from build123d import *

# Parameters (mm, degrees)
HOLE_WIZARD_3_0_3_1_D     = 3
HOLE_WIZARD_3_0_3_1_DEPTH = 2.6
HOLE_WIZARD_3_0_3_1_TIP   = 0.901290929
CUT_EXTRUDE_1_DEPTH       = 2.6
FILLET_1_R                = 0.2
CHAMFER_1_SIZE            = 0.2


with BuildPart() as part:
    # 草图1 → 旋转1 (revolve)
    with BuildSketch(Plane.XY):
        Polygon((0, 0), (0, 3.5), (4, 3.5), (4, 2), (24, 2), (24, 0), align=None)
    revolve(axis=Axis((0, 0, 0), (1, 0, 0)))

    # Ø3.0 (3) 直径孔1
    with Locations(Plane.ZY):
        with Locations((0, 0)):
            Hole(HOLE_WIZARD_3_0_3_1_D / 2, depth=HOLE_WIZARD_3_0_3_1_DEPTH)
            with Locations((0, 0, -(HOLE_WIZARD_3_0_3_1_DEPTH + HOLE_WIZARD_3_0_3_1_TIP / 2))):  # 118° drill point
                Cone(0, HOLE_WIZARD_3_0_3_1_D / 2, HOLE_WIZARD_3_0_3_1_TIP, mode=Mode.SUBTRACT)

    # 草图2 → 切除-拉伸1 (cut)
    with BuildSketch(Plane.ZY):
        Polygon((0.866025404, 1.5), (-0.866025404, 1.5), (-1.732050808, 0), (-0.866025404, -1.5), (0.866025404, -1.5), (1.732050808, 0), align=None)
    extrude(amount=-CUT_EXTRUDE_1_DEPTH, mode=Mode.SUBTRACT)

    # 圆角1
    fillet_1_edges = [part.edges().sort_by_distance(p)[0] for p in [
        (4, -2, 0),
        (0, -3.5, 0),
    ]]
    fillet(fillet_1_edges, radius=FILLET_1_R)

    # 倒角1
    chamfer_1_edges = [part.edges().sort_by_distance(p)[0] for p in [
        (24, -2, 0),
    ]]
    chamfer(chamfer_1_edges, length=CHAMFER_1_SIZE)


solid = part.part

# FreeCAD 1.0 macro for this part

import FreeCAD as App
import Part
import Sketcher

V = App.Vector
Q = App.Units.Quantity


def edges_at(feature, points):
    """Names of the edges that pass closest to the given points."""
    edges = feature.Shape.Edges
    near = lambda p: min(range(len(edges)), key=lambda i: edges[i].distToShape(Part.Vertex(*p))[0])
    return sorted({f"Edge{near(p) + 1}" for p in points})


def add_polygon(sketch, points):
    """Adds a closed chain of lines whose ends are joined by coincident constraints."""
    first, n = sketch.GeometryCount, len(points)
    for a, b in zip(points, points[1:] + points[:1]):
        sketch.addGeometry(Part.LineSegment(App.Vector(*a, 0), App.Vector(*b, 0)), False)
    for i in range(n):
        sketch.addConstraint(Sketcher.Constraint("Coincident", first + i, 2, first + (i + 1) % n, 1))

doc = App.newDocument("Part")
params = doc.addObject("Spreadsheet::Sheet", "Params")
for row, (alias, value) in enumerate([
    ("sketch1_width", "24 mm"),
    ("sketch1_width2", "20 mm"),
    ("sketch1_height", "2 mm"),
    ("sketch1_height2", "3.5 mm"),
    ("revolution_angle", "360 deg"),
    ("sketch2_diameter", "3 mm"),
    ("hole_diameter", "3 mm"),
    ("hole_depth", "2.6 mm"),
    ("pocket1_length", "2.6 mm"),
    ("fillet_radius", "0.2 mm"),
    ("chamfer_size", "0.2 mm"),
], start=1):
    params.set(f"A{row}", alias)
    params.set(f"B{row}", "=" + value)
    params.setAlias(f"B{row}", alias)

body = doc.addObject("PartDesign::Body", "Body")

sketch1 = body.newObject("Sketcher::SketchObject", "Sketch")
sketch1.AttachmentSupport = (doc.getObject("XY_Plane"), [""])
sketch1.MapMode = "FlatFace"
add_polygon(sketch1, [(0, 3.5), (0, 0), (24, 0), (24, 2), (4, 2), (4, 3.5)])
sketch1.addConstraint([
    Sketcher.Constraint("Vertical", 0),
    Sketcher.Constraint("Horizontal", 1),
    Sketcher.Constraint("Vertical", 2),
    Sketcher.Constraint("Horizontal", 3),
    Sketcher.Constraint("Vertical", 4),
    Sketcher.Constraint("Horizontal", 5),
    Sketcher.Constraint("Coincident", 0, 2, -1, 1),
    Sketcher.Constraint("DistanceX", 1, 1, 1, 2, Q("24 mm")),
    Sketcher.Constraint("DistanceX", 3, 2, 3, 1, Q("20 mm")),
    Sketcher.Constraint("DistanceY", 2, 1, 2, 2, Q("2 mm")),
    Sketcher.Constraint("DistanceY", 0, 2, 0, 1, Q("3.5 mm")),
])
sketch1.setExpression("Constraints[13]", "Params.sketch1_width")
sketch1.setExpression("Constraints[14]", "Params.sketch1_width2")
sketch1.setExpression("Constraints[15]", "Params.sketch1_height")
sketch1.setExpression("Constraints[16]", "Params.sketch1_height2")
revolution = body.newObject("PartDesign::Revolution", "Revolution")
revolution.Profile = sketch1
revolution.ReferenceAxis = (sketch1, ["H_Axis"])
revolution.setExpression("Angle", "Params.revolution_angle")

sketch2 = body.newObject("Sketcher::SketchObject", "Sketch001")
sketch2.AttachmentSupport = (doc.getObject("YZ_Plane"), [""])
sketch2.MapMode = "FlatFace"
sketch2.addGeometry(Part.Circle(V(0, 0, 0), V(0, 0, 1), 1.5), False)
sketch2.addConstraint([
    Sketcher.Constraint("Coincident", 0, 3, -1, 1),
    Sketcher.Constraint("Diameter", 0, Q("3 mm")),
])
sketch2.setExpression("Constraints[1]", "Params.sketch2_diameter")
doc.recompute()
hole = body.newObject("PartDesign::Hole", "Hole")
hole.Profile = sketch2
hole.ThreadType = "None"
hole.setExpression("Diameter", "Params.hole_diameter")
hole.DepthType = "Dimension"
hole.setExpression("Depth", "Params.hole_depth")
hole.DrillPoint = "Angled"
hole.DrillPointAngle = 118
hole.Reversed = True

sketch3 = body.newObject("Sketcher::SketchObject", "Sketch002")
sketch3.AttachmentSupport = (doc.getObject("YZ_Plane"), [""])
sketch3.MapMode = "FlatFace"
add_polygon(sketch3, [(1.5, 0.9), (1.5, -0.9), (0, -1.7), (-1.5, -0.9), (-1.5, 0.9), (0, 1.7)])
sketch3.addConstraint([
    Sketcher.Constraint("Vertical", 0),
    Sketcher.Constraint("Vertical", 3),
    Sketcher.Constraint("Symmetric", 0, 2, 3, 2, -1, 1),
    Sketcher.Constraint("Symmetric", 1, 2, 4, 2, -1, 1),
    Sketcher.Constraint("PointOnObject", 1, 2, -2),
    Sketcher.Constraint("Parallel", 2, 5),
    Sketcher.Constraint("Horizontal", 0, 2, 2, 2),
    Sketcher.Constraint("Angle", 1, Q("-150 deg")),
    Sketcher.Constraint("DistanceX", 2, 2, 0, 2, Q("3 mm")),
    Sketcher.Constraint("DistanceY", 0, 2, 0, 1, Q("1.732051 mm")),
])
pocket1 = body.newObject("PartDesign::Pocket", "Pocket")
pocket1.Profile = sketch3
pocket1.setExpression("Length", "Params.pocket1_length")
pocket1.Reversed = True
doc.recompute()

fillet = body.newObject("PartDesign::Fillet", "Fillet")
fillet.Base = (pocket1, edges_at(pocket1, [(4, -2, 0), (0, -3.5, 0)]))
fillet.setExpression("Radius", "Params.fillet_radius")
doc.recompute()

chamfer = body.newObject("PartDesign::Chamfer", "Chamfer")
chamfer.Base = (fillet, edges_at(fillet, [(24, -2, 0)]))
chamfer.setExpression("Size", "Params.chamfer_size")

doc.recompute()
